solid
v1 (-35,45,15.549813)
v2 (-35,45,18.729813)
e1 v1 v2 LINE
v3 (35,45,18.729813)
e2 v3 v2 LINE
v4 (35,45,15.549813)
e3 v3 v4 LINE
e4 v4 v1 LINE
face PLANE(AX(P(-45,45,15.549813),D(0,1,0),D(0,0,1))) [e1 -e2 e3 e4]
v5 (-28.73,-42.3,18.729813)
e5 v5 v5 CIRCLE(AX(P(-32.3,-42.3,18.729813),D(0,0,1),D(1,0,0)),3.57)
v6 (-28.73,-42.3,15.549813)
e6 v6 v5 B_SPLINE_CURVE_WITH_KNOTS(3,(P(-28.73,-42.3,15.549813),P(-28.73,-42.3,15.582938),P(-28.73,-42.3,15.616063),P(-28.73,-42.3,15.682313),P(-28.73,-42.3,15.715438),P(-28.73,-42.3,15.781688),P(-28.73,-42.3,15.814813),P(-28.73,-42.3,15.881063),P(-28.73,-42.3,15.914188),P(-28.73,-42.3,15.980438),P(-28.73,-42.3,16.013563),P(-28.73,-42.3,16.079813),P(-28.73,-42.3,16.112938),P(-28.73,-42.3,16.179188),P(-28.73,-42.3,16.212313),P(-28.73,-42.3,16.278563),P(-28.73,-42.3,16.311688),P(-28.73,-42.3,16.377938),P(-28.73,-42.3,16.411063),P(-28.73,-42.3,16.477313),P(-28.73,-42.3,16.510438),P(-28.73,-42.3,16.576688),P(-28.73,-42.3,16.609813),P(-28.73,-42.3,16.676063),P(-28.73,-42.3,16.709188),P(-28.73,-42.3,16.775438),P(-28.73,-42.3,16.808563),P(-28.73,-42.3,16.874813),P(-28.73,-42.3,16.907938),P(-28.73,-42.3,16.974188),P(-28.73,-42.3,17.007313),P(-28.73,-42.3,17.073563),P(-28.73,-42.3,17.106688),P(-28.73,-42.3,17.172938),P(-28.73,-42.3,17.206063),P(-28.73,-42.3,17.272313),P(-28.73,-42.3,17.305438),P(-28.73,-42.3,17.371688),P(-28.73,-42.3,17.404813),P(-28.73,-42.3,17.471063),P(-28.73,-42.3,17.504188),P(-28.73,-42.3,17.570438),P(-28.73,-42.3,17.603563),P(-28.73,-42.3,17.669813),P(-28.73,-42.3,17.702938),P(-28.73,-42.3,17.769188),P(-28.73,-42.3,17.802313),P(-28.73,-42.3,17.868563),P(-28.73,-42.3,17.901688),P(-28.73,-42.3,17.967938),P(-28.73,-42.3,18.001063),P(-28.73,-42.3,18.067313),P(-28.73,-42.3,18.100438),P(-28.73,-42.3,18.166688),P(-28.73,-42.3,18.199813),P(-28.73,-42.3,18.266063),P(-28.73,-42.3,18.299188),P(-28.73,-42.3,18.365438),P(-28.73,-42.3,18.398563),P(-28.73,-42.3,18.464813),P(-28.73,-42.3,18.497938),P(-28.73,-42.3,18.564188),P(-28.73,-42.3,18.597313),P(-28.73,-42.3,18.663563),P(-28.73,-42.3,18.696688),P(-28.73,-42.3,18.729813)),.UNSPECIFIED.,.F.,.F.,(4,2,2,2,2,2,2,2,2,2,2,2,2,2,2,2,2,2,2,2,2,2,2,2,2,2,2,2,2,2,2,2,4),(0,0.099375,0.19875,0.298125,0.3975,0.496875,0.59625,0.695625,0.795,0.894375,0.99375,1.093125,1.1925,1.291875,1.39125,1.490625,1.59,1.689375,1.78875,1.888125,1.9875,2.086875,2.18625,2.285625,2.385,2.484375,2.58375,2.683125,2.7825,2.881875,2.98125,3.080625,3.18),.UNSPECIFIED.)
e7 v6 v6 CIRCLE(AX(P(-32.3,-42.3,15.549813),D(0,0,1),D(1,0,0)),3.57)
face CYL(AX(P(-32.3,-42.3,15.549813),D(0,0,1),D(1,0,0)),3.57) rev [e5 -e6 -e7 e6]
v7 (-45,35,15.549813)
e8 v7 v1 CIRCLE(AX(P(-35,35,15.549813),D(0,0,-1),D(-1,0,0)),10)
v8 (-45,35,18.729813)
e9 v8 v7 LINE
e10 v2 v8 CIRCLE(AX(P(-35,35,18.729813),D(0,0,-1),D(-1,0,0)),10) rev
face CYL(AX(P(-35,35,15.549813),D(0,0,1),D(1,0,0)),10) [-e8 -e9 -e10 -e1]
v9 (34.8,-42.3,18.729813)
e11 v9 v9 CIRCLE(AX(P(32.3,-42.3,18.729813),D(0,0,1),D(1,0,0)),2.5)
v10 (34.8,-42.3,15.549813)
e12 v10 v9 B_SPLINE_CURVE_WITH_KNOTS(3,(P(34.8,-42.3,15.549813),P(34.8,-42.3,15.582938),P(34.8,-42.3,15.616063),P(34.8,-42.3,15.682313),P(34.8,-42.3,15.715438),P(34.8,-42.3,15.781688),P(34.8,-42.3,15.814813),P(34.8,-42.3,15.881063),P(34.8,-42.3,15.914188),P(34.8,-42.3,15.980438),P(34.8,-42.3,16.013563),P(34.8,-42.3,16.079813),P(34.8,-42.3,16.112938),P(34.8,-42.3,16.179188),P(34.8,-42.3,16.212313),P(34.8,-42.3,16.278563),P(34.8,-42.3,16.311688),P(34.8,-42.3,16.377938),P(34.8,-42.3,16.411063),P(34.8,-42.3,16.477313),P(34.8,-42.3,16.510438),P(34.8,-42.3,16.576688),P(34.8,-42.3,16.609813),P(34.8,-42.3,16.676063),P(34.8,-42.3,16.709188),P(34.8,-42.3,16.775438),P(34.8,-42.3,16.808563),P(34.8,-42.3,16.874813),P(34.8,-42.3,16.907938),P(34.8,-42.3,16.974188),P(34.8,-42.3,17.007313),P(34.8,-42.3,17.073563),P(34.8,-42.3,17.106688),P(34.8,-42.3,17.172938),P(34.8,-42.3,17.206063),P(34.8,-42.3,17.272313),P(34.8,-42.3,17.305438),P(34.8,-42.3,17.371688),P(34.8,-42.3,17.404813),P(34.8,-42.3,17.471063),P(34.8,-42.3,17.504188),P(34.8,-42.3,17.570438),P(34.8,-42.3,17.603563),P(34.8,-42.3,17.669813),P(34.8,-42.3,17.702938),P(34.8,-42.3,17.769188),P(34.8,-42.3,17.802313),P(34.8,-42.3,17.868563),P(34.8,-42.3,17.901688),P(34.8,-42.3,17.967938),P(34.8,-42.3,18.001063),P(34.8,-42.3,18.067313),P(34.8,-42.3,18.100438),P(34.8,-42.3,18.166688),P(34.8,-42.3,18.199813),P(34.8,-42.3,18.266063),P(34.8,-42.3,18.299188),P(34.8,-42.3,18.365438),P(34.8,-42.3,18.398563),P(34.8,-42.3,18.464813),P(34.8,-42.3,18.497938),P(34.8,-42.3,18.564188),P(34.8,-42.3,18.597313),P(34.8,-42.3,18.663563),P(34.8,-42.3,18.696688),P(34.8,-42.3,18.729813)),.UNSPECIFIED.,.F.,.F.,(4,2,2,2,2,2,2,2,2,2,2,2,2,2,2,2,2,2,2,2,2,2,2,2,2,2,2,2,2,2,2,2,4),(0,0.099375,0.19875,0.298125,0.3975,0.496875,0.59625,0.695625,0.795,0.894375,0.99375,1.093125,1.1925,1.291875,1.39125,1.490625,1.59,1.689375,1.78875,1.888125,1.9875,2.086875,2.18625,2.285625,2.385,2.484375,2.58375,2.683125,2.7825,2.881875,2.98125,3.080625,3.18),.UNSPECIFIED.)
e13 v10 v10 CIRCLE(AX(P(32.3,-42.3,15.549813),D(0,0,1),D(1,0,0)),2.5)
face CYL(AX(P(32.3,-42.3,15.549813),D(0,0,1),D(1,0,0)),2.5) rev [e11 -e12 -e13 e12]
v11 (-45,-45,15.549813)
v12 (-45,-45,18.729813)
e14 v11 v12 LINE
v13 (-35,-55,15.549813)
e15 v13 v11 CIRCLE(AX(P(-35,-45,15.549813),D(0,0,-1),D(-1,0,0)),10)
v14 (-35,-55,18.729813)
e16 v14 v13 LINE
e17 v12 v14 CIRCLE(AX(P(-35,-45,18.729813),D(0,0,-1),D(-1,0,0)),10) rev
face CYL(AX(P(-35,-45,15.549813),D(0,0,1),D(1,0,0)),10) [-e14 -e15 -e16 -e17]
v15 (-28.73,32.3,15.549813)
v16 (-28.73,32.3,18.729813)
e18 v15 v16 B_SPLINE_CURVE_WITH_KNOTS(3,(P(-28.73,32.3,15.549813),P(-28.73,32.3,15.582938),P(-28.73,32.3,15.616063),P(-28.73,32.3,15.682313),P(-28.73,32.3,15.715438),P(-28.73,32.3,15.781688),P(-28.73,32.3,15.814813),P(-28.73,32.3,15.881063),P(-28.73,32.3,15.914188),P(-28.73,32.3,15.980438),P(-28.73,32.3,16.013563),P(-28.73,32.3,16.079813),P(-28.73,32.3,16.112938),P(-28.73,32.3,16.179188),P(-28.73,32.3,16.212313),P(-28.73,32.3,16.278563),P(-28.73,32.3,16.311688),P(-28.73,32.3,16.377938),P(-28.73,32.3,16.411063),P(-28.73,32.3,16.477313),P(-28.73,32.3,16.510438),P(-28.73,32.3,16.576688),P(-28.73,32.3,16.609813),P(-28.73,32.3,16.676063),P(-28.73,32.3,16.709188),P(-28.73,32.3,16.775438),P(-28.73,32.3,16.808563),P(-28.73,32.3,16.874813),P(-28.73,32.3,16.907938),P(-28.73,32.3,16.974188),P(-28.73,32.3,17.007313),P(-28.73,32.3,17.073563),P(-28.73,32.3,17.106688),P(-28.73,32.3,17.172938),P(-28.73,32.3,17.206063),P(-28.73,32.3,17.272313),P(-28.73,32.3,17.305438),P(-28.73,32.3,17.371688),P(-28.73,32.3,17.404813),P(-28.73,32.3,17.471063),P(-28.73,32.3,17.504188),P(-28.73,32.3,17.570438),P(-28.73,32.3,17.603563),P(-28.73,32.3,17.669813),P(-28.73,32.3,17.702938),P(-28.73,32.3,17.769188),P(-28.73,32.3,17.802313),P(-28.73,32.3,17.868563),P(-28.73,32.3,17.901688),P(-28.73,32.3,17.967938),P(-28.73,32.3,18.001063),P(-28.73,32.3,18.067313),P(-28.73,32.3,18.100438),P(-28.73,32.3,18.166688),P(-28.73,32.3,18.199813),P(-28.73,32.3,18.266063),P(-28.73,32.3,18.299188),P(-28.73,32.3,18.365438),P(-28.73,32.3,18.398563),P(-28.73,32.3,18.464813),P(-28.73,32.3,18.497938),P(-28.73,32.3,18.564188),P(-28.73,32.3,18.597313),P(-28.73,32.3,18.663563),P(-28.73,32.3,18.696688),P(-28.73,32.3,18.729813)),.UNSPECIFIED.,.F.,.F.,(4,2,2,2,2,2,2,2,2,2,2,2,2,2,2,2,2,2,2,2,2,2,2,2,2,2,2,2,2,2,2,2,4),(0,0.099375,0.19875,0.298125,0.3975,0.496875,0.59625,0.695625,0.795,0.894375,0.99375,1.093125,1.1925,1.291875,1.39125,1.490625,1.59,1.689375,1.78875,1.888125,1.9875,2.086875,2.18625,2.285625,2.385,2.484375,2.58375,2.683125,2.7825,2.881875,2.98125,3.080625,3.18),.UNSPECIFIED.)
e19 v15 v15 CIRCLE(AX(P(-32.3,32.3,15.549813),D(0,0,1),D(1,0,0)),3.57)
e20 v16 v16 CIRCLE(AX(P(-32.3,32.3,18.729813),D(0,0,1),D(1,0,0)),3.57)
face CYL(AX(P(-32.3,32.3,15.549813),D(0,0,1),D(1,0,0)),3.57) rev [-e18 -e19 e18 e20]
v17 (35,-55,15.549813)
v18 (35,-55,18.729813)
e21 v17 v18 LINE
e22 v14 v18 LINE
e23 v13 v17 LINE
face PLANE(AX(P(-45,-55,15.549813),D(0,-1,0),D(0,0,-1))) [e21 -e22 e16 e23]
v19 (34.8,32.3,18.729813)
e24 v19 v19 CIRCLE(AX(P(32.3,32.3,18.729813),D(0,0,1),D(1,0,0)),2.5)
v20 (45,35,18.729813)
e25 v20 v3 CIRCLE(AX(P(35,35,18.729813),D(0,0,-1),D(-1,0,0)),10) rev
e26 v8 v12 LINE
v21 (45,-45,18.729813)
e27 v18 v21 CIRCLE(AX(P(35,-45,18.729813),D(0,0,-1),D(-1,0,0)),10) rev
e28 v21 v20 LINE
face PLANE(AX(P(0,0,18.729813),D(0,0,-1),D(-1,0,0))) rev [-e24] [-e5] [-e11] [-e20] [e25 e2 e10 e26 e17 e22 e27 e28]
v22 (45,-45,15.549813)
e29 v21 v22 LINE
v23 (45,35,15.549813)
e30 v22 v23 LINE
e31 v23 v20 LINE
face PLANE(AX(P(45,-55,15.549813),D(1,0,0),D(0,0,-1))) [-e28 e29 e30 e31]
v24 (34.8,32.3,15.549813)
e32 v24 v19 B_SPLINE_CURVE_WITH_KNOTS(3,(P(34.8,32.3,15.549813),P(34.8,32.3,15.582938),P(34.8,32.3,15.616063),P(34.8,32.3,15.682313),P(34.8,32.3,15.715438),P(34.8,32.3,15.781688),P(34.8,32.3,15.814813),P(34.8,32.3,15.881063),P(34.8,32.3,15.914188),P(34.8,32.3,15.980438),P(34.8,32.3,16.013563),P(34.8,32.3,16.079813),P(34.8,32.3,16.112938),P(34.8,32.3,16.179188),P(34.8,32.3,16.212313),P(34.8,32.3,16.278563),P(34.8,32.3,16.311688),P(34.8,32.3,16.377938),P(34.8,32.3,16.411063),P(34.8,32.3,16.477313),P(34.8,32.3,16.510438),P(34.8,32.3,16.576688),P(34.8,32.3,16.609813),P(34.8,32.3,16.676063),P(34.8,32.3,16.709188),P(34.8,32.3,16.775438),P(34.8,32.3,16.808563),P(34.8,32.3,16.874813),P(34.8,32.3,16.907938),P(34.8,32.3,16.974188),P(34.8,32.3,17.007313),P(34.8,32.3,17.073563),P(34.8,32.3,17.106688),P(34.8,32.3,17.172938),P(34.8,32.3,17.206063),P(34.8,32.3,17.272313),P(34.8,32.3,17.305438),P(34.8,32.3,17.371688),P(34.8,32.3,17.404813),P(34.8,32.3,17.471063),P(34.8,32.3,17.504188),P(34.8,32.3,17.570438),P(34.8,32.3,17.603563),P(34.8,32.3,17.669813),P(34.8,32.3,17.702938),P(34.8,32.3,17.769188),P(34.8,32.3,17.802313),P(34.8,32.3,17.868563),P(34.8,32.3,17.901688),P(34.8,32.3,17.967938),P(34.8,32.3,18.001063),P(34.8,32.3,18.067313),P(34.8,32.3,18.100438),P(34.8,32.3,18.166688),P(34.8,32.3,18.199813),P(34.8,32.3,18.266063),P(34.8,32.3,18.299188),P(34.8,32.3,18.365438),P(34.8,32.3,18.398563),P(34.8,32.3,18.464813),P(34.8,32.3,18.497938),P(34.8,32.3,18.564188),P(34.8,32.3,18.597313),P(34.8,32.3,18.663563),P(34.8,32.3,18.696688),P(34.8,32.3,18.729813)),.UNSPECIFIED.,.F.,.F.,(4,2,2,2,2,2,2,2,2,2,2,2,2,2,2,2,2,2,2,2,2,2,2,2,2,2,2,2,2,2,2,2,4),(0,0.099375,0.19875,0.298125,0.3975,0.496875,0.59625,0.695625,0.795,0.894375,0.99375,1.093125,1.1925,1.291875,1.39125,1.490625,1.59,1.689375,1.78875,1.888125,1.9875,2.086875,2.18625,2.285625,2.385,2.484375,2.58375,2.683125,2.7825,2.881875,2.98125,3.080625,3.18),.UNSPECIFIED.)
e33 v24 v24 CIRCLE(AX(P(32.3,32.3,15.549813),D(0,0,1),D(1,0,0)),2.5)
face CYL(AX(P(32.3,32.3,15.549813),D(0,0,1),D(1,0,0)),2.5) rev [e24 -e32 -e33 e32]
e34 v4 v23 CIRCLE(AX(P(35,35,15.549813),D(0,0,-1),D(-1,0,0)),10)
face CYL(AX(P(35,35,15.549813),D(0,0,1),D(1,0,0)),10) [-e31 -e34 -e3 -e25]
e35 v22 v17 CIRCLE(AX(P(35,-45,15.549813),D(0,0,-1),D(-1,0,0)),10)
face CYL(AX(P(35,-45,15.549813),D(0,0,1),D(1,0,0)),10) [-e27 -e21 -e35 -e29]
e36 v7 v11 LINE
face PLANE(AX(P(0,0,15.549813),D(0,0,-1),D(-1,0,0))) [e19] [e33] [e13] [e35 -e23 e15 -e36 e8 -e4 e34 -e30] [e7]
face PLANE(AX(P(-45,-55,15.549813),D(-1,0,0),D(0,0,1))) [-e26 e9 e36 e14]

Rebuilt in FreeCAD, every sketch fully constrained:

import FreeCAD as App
import Part
import Sketcher

V = App.Vector
Q = App.Units.Quantity


def edges_at(feature, points):
    """Names of the edges that pass closest to the given points."""
    edges = feature.Shape.Edges
    near = lambda p: min(range(len(edges)), key=lambda i: edges[i].distToShape(Part.Vertex(*p))[0])
    return sorted({f"Edge{near(p) + 1}" for p in points})

doc = App.newDocument("Part")
params = doc.addObject("Spreadsheet::Sheet", "Params")
for row, (alias, value) in enumerate([
    ("sketch1_diameter", "5 mm"),
    ("sketch1_diameter2", "7.14 mm"),
    ("sketch1_width", "90 mm"),
    ("sketch1_height", "100 mm"),
    ("pad1_length", "3.18 mm"),
    ("fillet_radius", "10 mm"),
], start=1):
    params.set(f"A{row}", alias)
    params.set(f"B{row}", "=" + value)
    params.setAlias(f"B{row}", alias)

body = doc.addObject("PartDesign::Body", "Body")

# Sketch on XY plane
sketch1 = body.newObject("Sketcher::SketchObject", "Sketch")
sketch1.AttachmentSupport = (doc.getObject("XY_Plane"), [""])
sketch1.MapMode = "FlatFace"
sketch1.AttachmentOffset = App.Placement(V(0, 0, 15.549813), App.Rotation())
sketch1.addGeometry([
    Part.LineSegment(V(-45, 45, 0), V(-45, -55, 0)),  # 0
    Part.LineSegment(V(-45, -55, 0), V(45, -55, 0)),  # 1
    Part.LineSegment(V(45, -55, 0), V(45, 45, 0)),  # 2
    Part.LineSegment(V(45, 45, 0), V(-45, 45, 0)),  # 3
    Part.Circle(V(-32.3, -42.3, 0), V(0, 0, 1), 3.57),  # 4
    Part.Circle(V(32.3, -42.3, 0), V(0, 0, 1), 2.5),  # 5
    Part.Circle(V(-32.3, 32.3, 0), V(0, 0, 1), 3.57),  # 6
    Part.Circle(V(32.3, 32.3, 0), V(0, 0, 1), 2.5),  # 7
], False)
sketch1.addConstraint([
    Sketcher.Constraint("Coincident", 0, 2, 1, 1),
    Sketcher.Constraint("Coincident", 1, 2, 2, 1),
    Sketcher.Constraint("Coincident", 2, 2, 3, 1),
    Sketcher.Constraint("Coincident", 3, 2, 0, 1),
    Sketcher.Constraint("Vertical", 0),
    Sketcher.Constraint("Horizontal", 1),
    Sketcher.Constraint("Vertical", 2),
    Sketcher.Constraint("Horizontal", 3),
    Sketcher.Constraint("Equal", 4, 6),
    Sketcher.Constraint("Equal", 5, 7),
    Sketcher.Constraint("Symmetric", 4, 3, 5, 3, -2),
    Sketcher.Constraint("Symmetric", 6, 3, 7, 3, -2),
    Sketcher.Constraint("Vertical", 4, 3, 6, 3),
    Sketcher.Constraint("Diameter", 5, Q("5 mm")),
    Sketcher.Constraint("Diameter", 4, Q("7.14 mm")),
    Sketcher.Constraint("DistanceX", 1, 1, 1, 2, Q("90 mm")),
    Sketcher.Constraint("DistanceY", 0, 2, 0, 1, Q("100 mm")),
    Sketcher.Constraint("DistanceX", 0, 2, -1, 1, Q("45 mm")),
    Sketcher.Constraint("DistanceY", 0, 2, -1, 1, Q("55 mm")),
    Sketcher.Constraint("DistanceX", 4, 3, -1, 1, Q("32.3 mm")),
    Sketcher.Constraint("DistanceY", 4, 3, -1, 1, Q("42.3 mm")),
    Sketcher.Constraint("DistanceY", -1, 1, 6, 3, Q("32.3 mm")),
])
sketch1.setExpression("Constraints[13]", "Params.sketch1_diameter")
sketch1.setExpression("Constraints[14]", "Params.sketch1_diameter2")
sketch1.setExpression("Constraints[15]", "Params.sketch1_width")
sketch1.setExpression("Constraints[16]", "Params.sketch1_height")
pad1 = body.newObject("PartDesign::Pad", "Pad")
pad1.Profile = sketch1
pad1.setExpression("Length", "Params.pad1_length")
doc.recompute()

fillet = body.newObject("PartDesign::Fillet", "Fillet")
fillet.Base = (pad1, edges_at(pad1, [
    (-45, 45, 17.14),
    (45, 45, 17.14),
    (45, -55, 17.14),
    (-45, -55, 17.14),
]))
fillet.setExpression("Radius", "Params.fillet_radius")

doc.recompute()
